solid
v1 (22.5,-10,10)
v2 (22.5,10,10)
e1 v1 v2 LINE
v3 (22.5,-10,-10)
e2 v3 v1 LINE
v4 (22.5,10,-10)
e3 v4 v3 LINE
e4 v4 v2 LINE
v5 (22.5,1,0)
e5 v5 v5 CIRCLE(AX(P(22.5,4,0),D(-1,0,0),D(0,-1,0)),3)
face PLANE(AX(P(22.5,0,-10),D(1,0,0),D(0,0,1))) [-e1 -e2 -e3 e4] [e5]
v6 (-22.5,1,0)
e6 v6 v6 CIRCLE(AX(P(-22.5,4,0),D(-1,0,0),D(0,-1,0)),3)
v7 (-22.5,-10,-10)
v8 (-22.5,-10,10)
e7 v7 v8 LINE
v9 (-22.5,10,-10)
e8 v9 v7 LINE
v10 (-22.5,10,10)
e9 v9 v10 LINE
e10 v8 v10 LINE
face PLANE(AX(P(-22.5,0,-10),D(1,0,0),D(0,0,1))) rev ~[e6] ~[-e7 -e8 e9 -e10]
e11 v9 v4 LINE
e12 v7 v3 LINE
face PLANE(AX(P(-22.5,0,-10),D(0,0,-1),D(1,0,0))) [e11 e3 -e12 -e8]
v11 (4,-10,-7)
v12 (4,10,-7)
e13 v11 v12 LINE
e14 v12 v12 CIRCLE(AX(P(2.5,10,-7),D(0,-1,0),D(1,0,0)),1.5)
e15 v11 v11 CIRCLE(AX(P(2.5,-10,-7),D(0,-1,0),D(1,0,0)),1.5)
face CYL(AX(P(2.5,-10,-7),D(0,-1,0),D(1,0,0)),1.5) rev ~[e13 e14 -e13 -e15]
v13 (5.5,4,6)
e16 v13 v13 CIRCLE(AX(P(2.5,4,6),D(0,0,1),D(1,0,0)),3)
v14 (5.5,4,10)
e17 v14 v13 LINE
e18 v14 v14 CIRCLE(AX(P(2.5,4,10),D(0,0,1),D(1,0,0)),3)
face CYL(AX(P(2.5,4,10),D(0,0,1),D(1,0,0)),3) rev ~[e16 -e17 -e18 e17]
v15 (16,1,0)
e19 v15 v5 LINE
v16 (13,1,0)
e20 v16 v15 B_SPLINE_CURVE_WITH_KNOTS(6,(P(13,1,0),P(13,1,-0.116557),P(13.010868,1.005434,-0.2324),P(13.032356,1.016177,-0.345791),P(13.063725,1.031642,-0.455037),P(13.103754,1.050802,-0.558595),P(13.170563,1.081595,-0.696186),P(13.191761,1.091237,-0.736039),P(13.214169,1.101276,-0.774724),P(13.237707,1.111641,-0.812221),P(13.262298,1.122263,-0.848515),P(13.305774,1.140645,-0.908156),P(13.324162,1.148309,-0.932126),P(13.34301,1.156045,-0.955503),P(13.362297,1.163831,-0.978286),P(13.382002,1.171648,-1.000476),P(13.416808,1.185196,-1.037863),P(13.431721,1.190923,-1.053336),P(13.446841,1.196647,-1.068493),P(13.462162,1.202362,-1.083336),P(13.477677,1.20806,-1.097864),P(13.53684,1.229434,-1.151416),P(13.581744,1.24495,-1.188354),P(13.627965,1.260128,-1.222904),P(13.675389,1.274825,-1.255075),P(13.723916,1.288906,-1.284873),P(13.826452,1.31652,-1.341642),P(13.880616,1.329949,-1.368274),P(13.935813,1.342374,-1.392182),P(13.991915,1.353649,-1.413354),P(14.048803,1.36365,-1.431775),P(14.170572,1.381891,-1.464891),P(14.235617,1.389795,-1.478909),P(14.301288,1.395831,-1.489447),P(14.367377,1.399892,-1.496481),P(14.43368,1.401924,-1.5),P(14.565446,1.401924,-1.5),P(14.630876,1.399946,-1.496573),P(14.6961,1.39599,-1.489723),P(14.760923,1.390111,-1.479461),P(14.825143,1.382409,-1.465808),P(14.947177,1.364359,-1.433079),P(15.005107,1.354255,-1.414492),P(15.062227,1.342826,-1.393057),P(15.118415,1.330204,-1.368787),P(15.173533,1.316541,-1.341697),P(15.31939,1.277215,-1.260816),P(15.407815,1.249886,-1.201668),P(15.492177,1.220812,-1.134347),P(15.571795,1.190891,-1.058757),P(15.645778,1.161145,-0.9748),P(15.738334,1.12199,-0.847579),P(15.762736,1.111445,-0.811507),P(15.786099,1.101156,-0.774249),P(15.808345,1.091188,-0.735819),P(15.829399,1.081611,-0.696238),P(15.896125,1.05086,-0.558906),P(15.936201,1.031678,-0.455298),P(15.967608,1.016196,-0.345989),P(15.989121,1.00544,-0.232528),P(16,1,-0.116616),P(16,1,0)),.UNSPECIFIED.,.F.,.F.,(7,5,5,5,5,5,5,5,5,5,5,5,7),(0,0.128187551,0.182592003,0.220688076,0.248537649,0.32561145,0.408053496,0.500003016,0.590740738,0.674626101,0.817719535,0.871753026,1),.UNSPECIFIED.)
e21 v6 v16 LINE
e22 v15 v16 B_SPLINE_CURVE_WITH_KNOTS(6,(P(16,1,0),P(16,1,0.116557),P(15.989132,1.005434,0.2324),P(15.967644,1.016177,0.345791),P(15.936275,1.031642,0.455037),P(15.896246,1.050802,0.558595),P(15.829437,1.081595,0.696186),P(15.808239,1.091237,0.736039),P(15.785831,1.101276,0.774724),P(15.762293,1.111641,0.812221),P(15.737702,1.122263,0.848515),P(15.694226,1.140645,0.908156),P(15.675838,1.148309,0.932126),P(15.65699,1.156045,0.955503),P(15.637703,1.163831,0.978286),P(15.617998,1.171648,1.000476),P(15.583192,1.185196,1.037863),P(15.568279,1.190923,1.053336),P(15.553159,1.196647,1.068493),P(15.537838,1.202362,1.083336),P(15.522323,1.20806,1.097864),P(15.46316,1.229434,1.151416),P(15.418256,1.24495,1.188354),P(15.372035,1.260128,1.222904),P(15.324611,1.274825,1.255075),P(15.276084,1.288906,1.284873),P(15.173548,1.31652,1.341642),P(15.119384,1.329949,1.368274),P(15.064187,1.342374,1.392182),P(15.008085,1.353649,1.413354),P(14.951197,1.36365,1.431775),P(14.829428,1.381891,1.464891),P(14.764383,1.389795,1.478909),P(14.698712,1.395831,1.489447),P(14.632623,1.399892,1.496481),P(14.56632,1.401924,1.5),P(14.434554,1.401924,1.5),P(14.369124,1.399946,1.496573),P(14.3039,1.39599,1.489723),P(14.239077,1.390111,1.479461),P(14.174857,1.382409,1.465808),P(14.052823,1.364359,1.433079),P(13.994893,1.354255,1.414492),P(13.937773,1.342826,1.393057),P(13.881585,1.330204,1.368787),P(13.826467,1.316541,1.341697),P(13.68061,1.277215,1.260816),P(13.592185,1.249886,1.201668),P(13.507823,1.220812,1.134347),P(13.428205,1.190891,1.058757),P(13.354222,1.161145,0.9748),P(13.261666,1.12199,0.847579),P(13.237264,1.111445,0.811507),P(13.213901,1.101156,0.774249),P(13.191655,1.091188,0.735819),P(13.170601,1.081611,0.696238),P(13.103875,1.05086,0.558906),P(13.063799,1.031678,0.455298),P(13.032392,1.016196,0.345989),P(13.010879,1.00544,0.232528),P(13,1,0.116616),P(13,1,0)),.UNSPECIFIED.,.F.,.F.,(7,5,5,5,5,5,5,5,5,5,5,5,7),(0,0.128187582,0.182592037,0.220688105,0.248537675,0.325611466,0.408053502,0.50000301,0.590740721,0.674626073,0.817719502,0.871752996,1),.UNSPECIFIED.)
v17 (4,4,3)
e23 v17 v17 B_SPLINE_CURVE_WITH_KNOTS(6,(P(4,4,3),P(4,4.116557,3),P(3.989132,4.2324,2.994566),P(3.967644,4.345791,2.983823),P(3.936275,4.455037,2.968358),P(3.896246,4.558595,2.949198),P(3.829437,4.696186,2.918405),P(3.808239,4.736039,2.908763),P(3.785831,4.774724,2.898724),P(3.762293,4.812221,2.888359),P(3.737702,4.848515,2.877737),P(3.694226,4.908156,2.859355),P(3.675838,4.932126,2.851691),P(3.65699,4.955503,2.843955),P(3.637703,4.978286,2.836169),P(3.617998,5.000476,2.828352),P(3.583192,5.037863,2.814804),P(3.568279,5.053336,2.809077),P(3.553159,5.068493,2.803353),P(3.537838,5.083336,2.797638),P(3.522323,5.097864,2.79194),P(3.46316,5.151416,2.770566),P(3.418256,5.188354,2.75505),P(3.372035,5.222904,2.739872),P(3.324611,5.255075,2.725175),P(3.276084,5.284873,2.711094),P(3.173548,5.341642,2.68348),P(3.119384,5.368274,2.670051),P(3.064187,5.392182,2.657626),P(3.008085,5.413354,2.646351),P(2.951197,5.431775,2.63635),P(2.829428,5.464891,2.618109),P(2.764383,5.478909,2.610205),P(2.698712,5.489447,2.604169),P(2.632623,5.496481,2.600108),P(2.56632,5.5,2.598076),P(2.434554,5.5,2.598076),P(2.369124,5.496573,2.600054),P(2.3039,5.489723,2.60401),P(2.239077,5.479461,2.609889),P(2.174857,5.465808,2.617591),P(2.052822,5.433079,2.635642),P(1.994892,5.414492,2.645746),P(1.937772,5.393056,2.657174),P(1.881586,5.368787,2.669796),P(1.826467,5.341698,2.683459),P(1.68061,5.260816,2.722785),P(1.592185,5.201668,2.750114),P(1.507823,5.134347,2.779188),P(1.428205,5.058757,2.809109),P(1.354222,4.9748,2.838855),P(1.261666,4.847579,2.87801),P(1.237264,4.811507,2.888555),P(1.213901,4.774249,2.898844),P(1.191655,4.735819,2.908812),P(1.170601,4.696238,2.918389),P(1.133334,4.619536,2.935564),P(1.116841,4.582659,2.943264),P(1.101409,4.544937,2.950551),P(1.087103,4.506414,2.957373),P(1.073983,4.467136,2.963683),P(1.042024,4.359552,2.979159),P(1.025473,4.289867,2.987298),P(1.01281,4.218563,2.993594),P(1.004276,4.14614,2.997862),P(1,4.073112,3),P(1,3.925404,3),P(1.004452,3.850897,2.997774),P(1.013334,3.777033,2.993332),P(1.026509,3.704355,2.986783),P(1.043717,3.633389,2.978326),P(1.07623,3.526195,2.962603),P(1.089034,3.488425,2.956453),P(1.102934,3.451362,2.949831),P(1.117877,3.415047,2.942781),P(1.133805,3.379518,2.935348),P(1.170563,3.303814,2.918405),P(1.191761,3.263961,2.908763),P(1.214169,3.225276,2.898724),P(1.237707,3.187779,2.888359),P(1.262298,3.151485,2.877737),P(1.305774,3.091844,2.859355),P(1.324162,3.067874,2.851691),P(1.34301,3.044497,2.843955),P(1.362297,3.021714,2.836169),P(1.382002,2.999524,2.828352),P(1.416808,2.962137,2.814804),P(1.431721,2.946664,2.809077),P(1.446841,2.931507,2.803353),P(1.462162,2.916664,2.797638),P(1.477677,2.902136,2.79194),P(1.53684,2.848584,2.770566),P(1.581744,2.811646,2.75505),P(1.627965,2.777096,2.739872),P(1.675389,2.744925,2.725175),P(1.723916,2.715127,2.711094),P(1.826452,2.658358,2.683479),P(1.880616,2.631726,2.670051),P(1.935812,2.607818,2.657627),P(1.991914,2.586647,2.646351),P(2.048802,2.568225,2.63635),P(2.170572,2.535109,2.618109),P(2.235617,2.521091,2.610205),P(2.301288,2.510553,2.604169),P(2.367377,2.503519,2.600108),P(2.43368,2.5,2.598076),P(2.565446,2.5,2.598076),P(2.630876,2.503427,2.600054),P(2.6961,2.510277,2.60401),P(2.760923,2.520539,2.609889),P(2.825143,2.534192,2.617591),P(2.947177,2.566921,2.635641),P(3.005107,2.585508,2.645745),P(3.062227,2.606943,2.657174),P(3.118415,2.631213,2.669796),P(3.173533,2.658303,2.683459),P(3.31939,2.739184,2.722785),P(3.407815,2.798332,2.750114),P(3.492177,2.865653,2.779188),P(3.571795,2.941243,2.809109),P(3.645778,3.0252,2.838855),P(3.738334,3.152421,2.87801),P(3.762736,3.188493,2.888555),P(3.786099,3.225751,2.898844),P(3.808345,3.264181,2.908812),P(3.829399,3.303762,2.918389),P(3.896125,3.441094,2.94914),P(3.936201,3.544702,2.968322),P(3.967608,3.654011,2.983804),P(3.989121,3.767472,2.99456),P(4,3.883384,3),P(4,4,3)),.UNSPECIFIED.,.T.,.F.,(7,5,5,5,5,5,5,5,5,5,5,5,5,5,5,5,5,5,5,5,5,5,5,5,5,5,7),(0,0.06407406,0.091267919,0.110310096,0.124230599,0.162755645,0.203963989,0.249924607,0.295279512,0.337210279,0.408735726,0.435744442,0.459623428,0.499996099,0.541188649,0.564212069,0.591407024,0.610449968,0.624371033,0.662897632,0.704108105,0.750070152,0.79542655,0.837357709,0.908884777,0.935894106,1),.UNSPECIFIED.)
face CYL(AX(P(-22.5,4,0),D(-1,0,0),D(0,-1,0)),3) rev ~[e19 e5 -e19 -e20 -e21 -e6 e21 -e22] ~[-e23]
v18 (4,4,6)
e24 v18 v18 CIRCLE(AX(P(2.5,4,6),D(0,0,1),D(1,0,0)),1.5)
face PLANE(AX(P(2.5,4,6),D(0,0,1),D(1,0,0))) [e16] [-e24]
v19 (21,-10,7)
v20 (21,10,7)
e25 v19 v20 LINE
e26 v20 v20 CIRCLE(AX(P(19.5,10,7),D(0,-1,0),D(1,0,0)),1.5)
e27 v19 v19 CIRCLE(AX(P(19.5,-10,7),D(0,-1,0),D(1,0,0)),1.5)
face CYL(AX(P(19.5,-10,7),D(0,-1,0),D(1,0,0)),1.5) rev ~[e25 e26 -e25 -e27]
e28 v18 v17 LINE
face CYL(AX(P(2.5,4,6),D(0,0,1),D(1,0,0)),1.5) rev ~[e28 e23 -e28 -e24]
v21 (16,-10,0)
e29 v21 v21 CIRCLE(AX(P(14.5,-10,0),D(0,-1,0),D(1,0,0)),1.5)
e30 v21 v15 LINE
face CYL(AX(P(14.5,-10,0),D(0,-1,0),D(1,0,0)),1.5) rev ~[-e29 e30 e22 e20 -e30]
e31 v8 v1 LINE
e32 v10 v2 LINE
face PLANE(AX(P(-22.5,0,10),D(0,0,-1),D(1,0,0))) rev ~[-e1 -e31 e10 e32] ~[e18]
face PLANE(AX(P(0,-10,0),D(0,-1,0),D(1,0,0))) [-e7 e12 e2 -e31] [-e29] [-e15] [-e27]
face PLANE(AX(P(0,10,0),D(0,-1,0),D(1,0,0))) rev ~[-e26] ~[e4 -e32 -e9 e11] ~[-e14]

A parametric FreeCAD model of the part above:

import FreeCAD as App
import Part
import Sketcher
Q = App.Units.Quantity

doc = App.newDocument("Part")
params = doc.addObject("Spreadsheet::Sheet", "Params")
for row, (alias, value) in enumerate([
    ("sketch1_width", "45 mm"),
    ("sketch1_height", "20 mm"),
    ("pad1_length", "10 mm"),
    ("pad1_length2", "10 mm"),
    ("sketch2_diameter", "6 mm"),
    ("sketch3_diameter", "3 mm"),
    ("sketch4_diameter", "3 mm"),
    ("pocket3_length", "11.402924 mm"),
    ("sketch5_diameter", "6 mm"),
    ("pocket4_length", "4 mm"),
    ("sketch6_diameter", "3 mm"),
    ("pocket5_length", "3.402924 mm"),
], start=1):
    params.set(f"A{row}", alias)
    params.set(f"B{row}", "=" + value)
    params.setAlias(f"B{row}", alias)

body = doc.addObject("PartDesign::Body", "Body")

sketch1 = body.newObject("Sketcher::SketchObject", "Sketch")
sketch1.AttachmentSupport = (doc.getObject("XZ_Plane"), [""])
sketch1.MapMode = "FlatFace"
sketch1.addGeometry([
    Part.LineSegment(App.Vector(-22, 10, 0), App.Vector(-22, -10, 0)),
    Part.LineSegment(App.Vector(-22, -10, 0), App.Vector(22, -10, 0)),
    Part.LineSegment(App.Vector(22, -10, 0), App.Vector(22, 10, 0)),
    Part.LineSegment(App.Vector(22, 10, 0), App.Vector(-22, 10, 0)),
], False)
sketch1.addConstraint([
    Sketcher.Constraint("Coincident", 0, 2, 1, 1),
    Sketcher.Constraint("Coincident", 1, 2, 2, 1),
    Sketcher.Constraint("Coincident", 2, 2, 3, 1),
    Sketcher.Constraint("Coincident", 3, 2, 0, 1),
    Sketcher.Constraint("Vertical", 0),
    Sketcher.Constraint("Horizontal", 1),
    Sketcher.Constraint("Vertical", 2),
    Sketcher.Constraint("Horizontal", 3),
    Sketcher.Constraint("Symmetric", 0, 2, 2, 2, -1, 1),
    Sketcher.Constraint("DistanceX", 1, 1, 1, 2, Q("45 mm")),
    Sketcher.Constraint("DistanceY", 0, 2, 0, 1, Q("20 mm")),
])
sketch1.setExpression("Constraints[9]", "Params.sketch1_width")
sketch1.setExpression("Constraints[10]", "Params.sketch1_height")
pad1 = body.newObject("PartDesign::Pad", "Pad")
pad1.Profile = sketch1
pad1.Type = "TwoLengths"
pad1.setExpression("Length", "Params.pad1_length")
pad1.setExpression("Length2", "Params.pad1_length2")

sketch2 = body.newObject("Sketcher::SketchObject", "Sketch001")
sketch2.AttachmentSupport = (doc.getObject("YZ_Plane"), [""])
sketch2.MapMode = "FlatFace"
sketch2.AttachmentOffset = App.Placement(App.Vector(0, 0, -22.5), App.Rotation())
sketch2.addGeometry(Part.Circle(App.Vector(4, 0, 0), App.Vector(0, 0, 1), 3), False)
sketch2.addConstraint([
    Sketcher.Constraint("PointOnObject", 0, 3, -1),
    Sketcher.Constraint("Diameter", 0, Q("6 mm")),
    Sketcher.Constraint("DistanceX", -1, 1, 0, 3, Q("4 mm")),
])
sketch2.setExpression("Constraints[1]", "Params.sketch2_diameter")
pocket1 = body.newObject("PartDesign::Pocket", "Pocket")
pocket1.Profile = sketch2
pocket1.Type = "ThroughAll"
pocket1.Reversed = True

sketch3 = body.newObject("Sketcher::SketchObject", "Sketch002")
sketch3.AttachmentSupport = (doc.getObject("XZ_Plane"), [""])
sketch3.MapMode = "FlatFace"
sketch3.AttachmentOffset = App.Placement(App.Vector(0, 0, 10), App.Rotation())
sketch3.addGeometry([
    Part.Circle(App.Vector(19.5, 7, 0), App.Vector(0, 0, 1), 1.5),
    Part.Circle(App.Vector(2.5, -7, 0), App.Vector(0, 0, 1), 1.5),
], False)
sketch3.addConstraint([
    Sketcher.Constraint("Equal", 0, 1),
    Sketcher.Constraint("Diameter", 0, Q("3 mm")),
    Sketcher.Constraint("DistanceY", -1, 1, 0, 3, Q("7 mm")),
    Sketcher.Constraint("DistanceY", 1, 3, -1, 1, Q("7 mm")),
    Sketcher.Constraint("DistanceX", 1, 3, 0, 3, Q("17 mm")),
    Sketcher.Constraint("DistanceX", -1, 1, 0, 3, Q("19.5 mm")),
])
sketch3.setExpression("Constraints[1]", "Params.sketch3_diameter")
pocket2 = body.newObject("PartDesign::Pocket", "Pocket001")
pocket2.Profile = sketch3
pocket2.Type = "ThroughAll"

sketch4 = body.newObject("Sketcher::SketchObject", "Sketch003")
sketch4.AttachmentSupport = (doc.getObject("XZ_Plane"), [""])
sketch4.MapMode = "FlatFace"
sketch4.AttachmentOffset = App.Placement(App.Vector(0, 0, 10), App.Rotation())
sketch4.addGeometry(Part.Circle(App.Vector(14.5, 0, 0), App.Vector(0, 0, 1), 1.5), False)
sketch4.addConstraint([
    Sketcher.Constraint("PointOnObject", 0, 3, -1),
    Sketcher.Constraint("Diameter", 0, Q("3 mm")),
    Sketcher.Constraint("DistanceX", -1, 1, 0, 3, Q("14.5 mm")),
])
sketch4.setExpression("Constraints[1]", "Params.sketch4_diameter")
pocket3 = body.newObject("PartDesign::Pocket", "Pocket002")
pocket3.Profile = sketch4
pocket3.setExpression("Length", "Params.pocket3_length")

sketch5 = body.newObject("Sketcher::SketchObject", "Sketch004")
sketch5.AttachmentSupport = (doc.getObject("XY_Plane"), [""])
sketch5.MapMode = "FlatFace"
sketch5.AttachmentOffset = App.Placement(App.Vector(0, 0, 10), App.Rotation())
sketch5.addGeometry(Part.Circle(App.Vector(2.5, 4, 0), App.Vector(0, 0, 1), 3), False)
sketch5.addConstraint([
    Sketcher.Constraint("Diameter", 0, Q("6 mm")),
    Sketcher.Constraint("DistanceY", -1, 1, 0, 3, Q("4 mm")),
    Sketcher.Constraint("DistanceX", -1, 1, 0, 3, Q("2.5 mm")),
])
sketch5.setExpression("Constraints[0]", "Params.sketch5_diameter")
pocket4 = body.newObject("PartDesign::Pocket", "Pocket003")
pocket4.Profile = sketch5
pocket4.setExpression("Length", "Params.pocket4_length")

sketch6 = body.newObject("Sketcher::SketchObject", "Sketch005")
sketch6.AttachmentSupport = (doc.getObject("XY_Plane"), [""])
sketch6.MapMode = "FlatFace"
sketch6.AttachmentOffset = App.Placement(App.Vector(0, 0, 6), App.Rotation())
sketch6.addGeometry(Part.Circle(App.Vector(2.5, 4, 0), App.Vector(0, 0, 1), 1.5), False)
sketch6.addConstraint([
    Sketcher.Constraint("Diameter", 0, Q("3 mm")),
    Sketcher.Constraint("DistanceY", -1, 1, 0, 3, Q("4 mm")),
    Sketcher.Constraint("DistanceX", -1, 1, 0, 3, Q("2.5 mm")),
])
sketch6.setExpression("Constraints[0]", "Params.sketch6_diameter")
pocket5 = body.newObject("PartDesign::Pocket", "Pocket004")
pocket5.Profile = sketch6
pocket5.setExpression("Length", "Params.pocket5_length")

doc.recompute()
